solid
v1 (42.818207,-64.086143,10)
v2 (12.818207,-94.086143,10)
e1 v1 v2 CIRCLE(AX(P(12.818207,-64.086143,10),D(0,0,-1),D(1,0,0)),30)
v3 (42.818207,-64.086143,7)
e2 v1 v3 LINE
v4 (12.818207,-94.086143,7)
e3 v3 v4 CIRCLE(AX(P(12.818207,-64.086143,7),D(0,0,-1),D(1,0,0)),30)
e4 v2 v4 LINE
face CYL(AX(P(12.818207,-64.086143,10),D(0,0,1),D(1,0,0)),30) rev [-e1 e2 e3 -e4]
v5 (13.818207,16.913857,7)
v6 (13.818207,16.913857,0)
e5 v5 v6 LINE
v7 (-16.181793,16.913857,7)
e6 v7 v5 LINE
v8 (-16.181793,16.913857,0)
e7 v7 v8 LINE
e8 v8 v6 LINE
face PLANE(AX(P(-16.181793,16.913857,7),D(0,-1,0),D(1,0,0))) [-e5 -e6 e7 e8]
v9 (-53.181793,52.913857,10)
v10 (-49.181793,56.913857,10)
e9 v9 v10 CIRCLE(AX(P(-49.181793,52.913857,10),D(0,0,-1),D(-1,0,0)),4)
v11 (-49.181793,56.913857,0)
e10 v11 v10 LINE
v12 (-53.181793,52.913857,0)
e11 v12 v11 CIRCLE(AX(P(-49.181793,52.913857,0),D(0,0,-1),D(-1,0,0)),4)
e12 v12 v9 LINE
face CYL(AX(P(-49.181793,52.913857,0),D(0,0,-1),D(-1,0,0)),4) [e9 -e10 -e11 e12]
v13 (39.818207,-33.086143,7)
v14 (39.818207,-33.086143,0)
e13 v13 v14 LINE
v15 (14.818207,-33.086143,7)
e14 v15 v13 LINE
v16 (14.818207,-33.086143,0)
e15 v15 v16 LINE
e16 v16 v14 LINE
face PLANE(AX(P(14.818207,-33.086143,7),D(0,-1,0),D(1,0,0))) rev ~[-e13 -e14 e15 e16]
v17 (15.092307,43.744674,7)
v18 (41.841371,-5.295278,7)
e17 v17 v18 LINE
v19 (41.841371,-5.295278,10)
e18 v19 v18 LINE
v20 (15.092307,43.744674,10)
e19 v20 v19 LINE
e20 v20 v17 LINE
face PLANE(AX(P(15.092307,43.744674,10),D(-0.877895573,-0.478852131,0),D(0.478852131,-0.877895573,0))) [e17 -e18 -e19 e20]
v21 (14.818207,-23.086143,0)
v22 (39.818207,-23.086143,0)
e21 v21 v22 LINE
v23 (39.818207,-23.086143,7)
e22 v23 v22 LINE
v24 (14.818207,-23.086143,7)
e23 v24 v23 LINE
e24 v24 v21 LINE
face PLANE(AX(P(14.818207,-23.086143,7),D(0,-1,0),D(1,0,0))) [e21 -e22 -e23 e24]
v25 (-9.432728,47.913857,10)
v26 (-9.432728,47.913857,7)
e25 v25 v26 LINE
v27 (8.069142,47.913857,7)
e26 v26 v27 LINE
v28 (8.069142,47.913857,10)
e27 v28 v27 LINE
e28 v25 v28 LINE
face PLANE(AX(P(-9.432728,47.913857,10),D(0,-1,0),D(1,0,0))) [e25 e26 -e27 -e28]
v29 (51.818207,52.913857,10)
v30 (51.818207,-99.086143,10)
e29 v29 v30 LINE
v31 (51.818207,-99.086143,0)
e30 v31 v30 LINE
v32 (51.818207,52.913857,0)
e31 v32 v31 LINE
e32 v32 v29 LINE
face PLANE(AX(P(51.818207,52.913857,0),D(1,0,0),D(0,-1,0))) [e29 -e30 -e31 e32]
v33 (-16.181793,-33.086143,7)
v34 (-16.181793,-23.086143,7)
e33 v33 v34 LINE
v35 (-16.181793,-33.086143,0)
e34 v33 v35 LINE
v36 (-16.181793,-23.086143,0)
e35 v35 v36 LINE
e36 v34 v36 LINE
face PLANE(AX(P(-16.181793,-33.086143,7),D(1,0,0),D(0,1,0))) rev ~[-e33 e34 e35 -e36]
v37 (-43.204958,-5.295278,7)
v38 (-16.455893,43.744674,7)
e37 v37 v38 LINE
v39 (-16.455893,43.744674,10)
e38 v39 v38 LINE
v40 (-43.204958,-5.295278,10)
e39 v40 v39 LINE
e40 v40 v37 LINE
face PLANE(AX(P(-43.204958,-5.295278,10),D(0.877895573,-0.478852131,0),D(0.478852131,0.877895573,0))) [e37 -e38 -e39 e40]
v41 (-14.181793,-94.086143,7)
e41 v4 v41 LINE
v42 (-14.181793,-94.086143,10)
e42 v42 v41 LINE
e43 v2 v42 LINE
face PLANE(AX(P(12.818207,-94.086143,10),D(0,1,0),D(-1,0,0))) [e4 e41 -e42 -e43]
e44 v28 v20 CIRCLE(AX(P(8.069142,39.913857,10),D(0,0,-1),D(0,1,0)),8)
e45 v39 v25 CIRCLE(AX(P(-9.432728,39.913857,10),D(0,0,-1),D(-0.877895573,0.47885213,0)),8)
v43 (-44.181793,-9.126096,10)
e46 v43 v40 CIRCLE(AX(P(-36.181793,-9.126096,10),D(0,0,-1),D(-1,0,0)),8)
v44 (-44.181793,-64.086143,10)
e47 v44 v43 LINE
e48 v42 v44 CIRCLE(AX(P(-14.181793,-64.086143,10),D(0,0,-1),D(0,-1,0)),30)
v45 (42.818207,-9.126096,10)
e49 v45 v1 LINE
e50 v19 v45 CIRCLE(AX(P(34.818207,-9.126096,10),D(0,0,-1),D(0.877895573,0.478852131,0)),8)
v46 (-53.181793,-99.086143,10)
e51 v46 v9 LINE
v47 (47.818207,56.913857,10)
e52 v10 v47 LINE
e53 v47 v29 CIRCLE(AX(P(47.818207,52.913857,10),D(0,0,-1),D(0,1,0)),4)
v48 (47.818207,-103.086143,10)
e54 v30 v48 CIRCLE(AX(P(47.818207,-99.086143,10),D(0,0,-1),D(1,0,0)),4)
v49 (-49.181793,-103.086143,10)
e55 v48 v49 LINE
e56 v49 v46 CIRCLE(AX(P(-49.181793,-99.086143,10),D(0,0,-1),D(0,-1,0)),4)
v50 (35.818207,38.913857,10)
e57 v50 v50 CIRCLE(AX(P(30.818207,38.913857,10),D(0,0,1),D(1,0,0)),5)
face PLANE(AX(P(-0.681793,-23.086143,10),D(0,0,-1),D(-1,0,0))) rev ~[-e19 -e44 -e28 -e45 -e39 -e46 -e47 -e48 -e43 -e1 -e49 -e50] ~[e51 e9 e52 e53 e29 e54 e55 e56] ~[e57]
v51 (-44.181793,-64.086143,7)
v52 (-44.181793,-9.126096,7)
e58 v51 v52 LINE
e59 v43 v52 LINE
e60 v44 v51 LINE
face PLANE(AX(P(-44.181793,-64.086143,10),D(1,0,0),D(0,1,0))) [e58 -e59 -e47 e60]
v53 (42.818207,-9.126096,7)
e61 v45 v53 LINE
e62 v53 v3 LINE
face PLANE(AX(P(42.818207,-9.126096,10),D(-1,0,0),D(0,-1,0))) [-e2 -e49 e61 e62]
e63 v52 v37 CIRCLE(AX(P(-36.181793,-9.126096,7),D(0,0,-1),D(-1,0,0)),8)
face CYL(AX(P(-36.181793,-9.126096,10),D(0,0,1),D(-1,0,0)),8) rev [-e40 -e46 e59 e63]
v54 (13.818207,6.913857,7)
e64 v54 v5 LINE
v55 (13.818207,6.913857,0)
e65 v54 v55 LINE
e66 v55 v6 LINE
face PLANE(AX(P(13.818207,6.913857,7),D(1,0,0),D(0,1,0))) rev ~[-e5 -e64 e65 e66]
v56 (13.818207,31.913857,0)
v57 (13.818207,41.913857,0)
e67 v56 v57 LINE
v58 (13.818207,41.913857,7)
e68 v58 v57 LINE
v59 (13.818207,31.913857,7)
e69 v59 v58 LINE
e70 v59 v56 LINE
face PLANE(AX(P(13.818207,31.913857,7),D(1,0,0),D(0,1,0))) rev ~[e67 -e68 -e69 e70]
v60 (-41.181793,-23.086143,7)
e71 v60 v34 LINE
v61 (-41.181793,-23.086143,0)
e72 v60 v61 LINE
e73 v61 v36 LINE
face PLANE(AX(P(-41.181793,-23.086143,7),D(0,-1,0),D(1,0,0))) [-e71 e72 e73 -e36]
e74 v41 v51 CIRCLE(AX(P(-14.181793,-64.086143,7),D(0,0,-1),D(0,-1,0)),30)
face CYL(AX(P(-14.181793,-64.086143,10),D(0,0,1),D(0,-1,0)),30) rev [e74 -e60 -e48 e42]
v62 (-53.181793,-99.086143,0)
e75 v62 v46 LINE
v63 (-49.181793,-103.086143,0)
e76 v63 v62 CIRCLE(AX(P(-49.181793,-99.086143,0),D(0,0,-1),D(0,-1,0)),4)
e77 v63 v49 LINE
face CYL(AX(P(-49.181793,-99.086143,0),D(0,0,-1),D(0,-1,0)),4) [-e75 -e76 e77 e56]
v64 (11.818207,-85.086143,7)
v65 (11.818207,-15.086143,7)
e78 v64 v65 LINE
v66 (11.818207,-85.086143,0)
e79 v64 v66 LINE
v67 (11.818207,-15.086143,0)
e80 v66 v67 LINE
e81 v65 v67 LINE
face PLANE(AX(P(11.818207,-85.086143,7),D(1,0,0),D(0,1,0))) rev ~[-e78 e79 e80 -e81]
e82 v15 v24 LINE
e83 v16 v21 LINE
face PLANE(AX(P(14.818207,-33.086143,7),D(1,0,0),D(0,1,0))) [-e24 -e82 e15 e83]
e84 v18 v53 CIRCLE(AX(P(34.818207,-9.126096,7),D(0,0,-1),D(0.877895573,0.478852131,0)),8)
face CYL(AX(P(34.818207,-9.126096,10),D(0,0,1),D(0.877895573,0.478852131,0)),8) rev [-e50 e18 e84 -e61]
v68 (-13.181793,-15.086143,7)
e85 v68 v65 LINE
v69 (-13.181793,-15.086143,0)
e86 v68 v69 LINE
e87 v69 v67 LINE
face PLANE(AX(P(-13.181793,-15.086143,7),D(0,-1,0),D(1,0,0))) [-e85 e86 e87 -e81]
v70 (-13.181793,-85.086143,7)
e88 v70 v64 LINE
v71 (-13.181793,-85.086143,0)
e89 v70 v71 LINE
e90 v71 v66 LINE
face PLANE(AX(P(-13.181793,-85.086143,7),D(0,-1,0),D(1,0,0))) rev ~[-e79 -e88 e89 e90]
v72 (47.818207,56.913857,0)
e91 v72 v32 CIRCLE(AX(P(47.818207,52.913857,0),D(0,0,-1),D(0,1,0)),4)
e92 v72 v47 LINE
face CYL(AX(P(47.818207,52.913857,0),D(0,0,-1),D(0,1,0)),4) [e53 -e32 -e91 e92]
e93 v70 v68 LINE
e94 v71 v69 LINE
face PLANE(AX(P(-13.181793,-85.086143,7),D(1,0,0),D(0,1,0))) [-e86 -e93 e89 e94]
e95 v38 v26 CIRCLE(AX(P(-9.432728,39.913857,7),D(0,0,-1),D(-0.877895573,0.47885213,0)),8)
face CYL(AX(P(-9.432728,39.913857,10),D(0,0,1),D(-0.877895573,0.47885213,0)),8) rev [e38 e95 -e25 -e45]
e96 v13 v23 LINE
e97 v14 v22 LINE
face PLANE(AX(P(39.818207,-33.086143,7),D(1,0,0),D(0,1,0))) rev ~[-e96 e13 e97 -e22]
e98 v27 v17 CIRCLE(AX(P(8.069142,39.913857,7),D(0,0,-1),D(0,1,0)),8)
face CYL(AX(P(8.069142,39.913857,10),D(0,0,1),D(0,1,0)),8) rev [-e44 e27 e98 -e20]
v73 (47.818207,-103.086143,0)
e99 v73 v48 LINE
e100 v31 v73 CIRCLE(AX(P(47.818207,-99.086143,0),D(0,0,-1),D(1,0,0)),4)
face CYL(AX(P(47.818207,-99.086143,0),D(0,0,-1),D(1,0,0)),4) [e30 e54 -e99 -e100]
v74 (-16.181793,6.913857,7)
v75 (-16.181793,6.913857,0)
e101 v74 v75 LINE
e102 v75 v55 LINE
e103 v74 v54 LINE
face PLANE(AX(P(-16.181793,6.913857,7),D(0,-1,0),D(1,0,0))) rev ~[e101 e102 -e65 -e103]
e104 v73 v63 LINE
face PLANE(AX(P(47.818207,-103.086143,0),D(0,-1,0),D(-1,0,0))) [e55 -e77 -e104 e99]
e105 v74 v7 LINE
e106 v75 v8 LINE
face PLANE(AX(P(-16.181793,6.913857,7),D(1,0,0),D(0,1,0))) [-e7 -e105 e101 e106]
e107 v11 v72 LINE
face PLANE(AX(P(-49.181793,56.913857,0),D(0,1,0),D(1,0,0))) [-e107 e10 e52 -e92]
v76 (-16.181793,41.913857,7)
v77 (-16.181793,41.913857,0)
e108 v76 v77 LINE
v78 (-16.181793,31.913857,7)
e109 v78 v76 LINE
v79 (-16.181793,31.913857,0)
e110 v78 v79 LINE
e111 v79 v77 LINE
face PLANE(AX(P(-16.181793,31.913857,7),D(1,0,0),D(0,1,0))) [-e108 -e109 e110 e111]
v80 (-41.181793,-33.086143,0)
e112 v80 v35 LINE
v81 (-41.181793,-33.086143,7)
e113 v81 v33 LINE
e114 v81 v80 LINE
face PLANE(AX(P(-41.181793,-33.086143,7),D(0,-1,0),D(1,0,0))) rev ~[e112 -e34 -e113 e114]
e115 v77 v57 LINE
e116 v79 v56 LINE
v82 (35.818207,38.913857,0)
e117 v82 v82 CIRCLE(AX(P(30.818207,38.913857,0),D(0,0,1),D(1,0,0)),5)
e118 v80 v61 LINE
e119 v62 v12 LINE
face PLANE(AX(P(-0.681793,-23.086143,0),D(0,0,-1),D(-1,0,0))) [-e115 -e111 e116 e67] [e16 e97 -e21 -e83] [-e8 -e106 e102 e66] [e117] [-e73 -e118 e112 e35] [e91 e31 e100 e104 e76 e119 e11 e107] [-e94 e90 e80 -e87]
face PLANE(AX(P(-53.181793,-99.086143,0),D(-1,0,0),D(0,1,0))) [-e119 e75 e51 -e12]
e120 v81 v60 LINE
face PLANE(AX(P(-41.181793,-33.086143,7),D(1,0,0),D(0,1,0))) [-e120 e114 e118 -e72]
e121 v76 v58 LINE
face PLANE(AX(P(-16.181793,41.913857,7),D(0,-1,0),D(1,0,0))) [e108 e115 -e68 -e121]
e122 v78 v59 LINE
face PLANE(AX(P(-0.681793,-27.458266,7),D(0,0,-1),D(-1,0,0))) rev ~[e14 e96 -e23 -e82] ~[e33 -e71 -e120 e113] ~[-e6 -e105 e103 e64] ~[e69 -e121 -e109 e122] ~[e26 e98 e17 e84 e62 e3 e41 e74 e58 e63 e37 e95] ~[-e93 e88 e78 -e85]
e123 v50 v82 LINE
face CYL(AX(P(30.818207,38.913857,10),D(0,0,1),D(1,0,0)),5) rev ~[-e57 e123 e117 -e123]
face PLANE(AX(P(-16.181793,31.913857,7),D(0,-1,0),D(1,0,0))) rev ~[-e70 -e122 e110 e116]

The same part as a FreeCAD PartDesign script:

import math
import FreeCAD as App
import Part
import Sketcher

V = App.Vector
Q = App.Units.Quantity


def add_polygon(sketch, points):
    """Adds a closed chain of lines whose ends are joined by coincident constraints."""
    first, n = sketch.GeometryCount, len(points)
    for a, b in zip(points, points[1:] + points[:1]):
        sketch.addGeometry(Part.LineSegment(App.Vector(*a, 0), App.Vector(*b, 0)), False)
    for i in range(n):
        sketch.addConstraint(Sketcher.Constraint("Coincident", first + i, 2, first + (i + 1) % n, 1))

doc = App.newDocument("Part")
body = doc.addObject("PartDesign::Body", "Body")

sketch1 = doc.addObject("Sketcher::SketchObject", "Sketch")
body.addObject(sketch1)
sketch1.AttachmentSupport = (doc.XY_Plane, [""])
sketch1.MapMode = "FlatFace"
sketch1.addGeometry(Part.LineSegment(V(47.818207, 56.913857, 0), V(-49.181793, 56.913857, 0)), False)
sketch1.addGeometry(Part.ArcOfCircle(Part.Circle(V(-49.181793, 52.913857, 0), V(0, 0, 1), 4), math.radians(90), math.radians(180)), False)
sketch1.addGeometry(Part.LineSegment(V(-53.181793, 52.913857, 0), V(-53.181793, -99.086143, 0)), False)
sketch1.addGeometry(Part.ArcOfCircle(Part.Circle(V(-49.181793, -99.086143, 0), V(0, 0, 1), 4), math.radians(180), math.radians(270)), False)
sketch1.addGeometry(Part.LineSegment(V(-49.181793, -103.086143, 0), V(47.818207, -103.086143, 0)), False)
sketch1.addGeometry(Part.ArcOfCircle(Part.Circle(V(47.818207, -99.086143, 0), V(0, 0, 1), 4), math.radians(-90), math.radians(0)), False)
sketch1.addGeometry(Part.LineSegment(V(51.818207, -99.086143, 0), V(51.818207, 52.913857, 0)), False)
sketch1.addGeometry(Part.ArcOfCircle(Part.Circle(V(47.818207, 52.913857, 0), V(0, 0, 1), 4), math.radians(0), math.radians(90)), False)
sketch1.addConstraint(Sketcher.Constraint("Tangent", 0, 2, 1, 1))
sketch1.addConstraint(Sketcher.Constraint("Tangent", 1, 2, 2, 1))
sketch1.addConstraint(Sketcher.Constraint("Tangent", 2, 2, 3, 1))
sketch1.addConstraint(Sketcher.Constraint("Tangent", 3, 2, 4, 1))
sketch1.addConstraint(Sketcher.Constraint("Tangent", 4, 2, 5, 1))
sketch1.addConstraint(Sketcher.Constraint("Tangent", 5, 2, 6, 1))
sketch1.addConstraint(Sketcher.Constraint("Tangent", 6, 2, 7, 1))
sketch1.addConstraint(Sketcher.Constraint("Tangent", 7, 2, 0, 1))
sketch1.addConstraint(Sketcher.Constraint("Horizontal", 0))
sketch1.addConstraint(Sketcher.Constraint("Vertical", 2))
sketch1.addConstraint(Sketcher.Constraint("Horizontal", 4))
sketch1.addConstraint(Sketcher.Constraint("Vertical", 6))
sketch1.addConstraint(Sketcher.Constraint("Equal", 1, 3))
sketch1.addConstraint(Sketcher.Constraint("Equal", 3, 5))
sketch1.addConstraint(Sketcher.Constraint("Equal", 5, 7))
sketch1.addConstraint(Sketcher.Constraint("Radius", 1, Q("4 mm")))
sketch1.addConstraint(Sketcher.Constraint("DistanceX", 0, 2, 0, 1, Q("97 mm")))
sketch1.addConstraint(Sketcher.Constraint("DistanceY", 2, 2, 2, 1, Q("152 mm")))
sketch1.addConstraint(Sketcher.Constraint("DistanceX", 1, 3, -1, 1, Q("49.181793 mm")))
sketch1.addConstraint(Sketcher.Constraint("DistanceY", -1, 1, 1, 3, Q("52.913857 mm")))
pad1 = doc.addObject("PartDesign::Pad", "Pad")
body.addObject(pad1)
pad1.Profile = sketch1
pad1.Length = 10

sketch2 = doc.addObject("Sketcher::SketchObject", "Sketch001")
body.addObject(sketch2)
sketch2.AttachmentSupport = (doc.XY_Plane, [""])
sketch2.MapMode = "FlatFace"
sketch2.AttachmentOffset = App.Placement(V(0, 0, 10), App.Rotation())
sketch2.addGeometry(Part.LineSegment(V(8.069142, 47.913857, 0), V(-9.432728, 47.913857, 0)), False)
sketch2.addGeometry(Part.ArcOfCircle(Part.Circle(V(-9.432728, 39.913857, 0), V(0, 0, 1), 8), math.radians(90), math.radians(151.38954)), False)
sketch2.addGeometry(Part.LineSegment(V(-16.455893, 43.744674, 0), V(-43.204958, -5.295278, 0)), False)
sketch2.addGeometry(Part.ArcOfCircle(Part.Circle(V(-36.181793, -9.126096, 0), V(0, 0, 1), 8), math.radians(151.38954), math.radians(180)), False)
sketch2.addGeometry(Part.LineSegment(V(-44.181793, -9.126096, 0), V(-44.181793, -64.086143, 0)), False)
sketch2.addGeometry(Part.ArcOfCircle(Part.Circle(V(-14.181793, -64.086143, 0), V(0, 0, 1), 30), math.radians(180), math.radians(270)), False)
sketch2.addGeometry(Part.LineSegment(V(-14.181793, -94.086143, 0), V(12.818207, -94.086143, 0)), False)
sketch2.addGeometry(Part.ArcOfCircle(Part.Circle(V(12.818207, -64.086143, 0), V(0, 0, 1), 30), math.radians(-90), math.radians(0)), False)
sketch2.addGeometry(Part.LineSegment(V(42.818207, -64.086143, 0), V(42.818207, -9.126096, 0)), False)
sketch2.addGeometry(Part.ArcOfCircle(Part.Circle(V(34.818207, -9.126096, 0), V(0, 0, 1), 8), math.radians(0), math.radians(28.61046)), False)
sketch2.addGeometry(Part.LineSegment(V(41.841371, -5.295278, 0), V(15.092307, 43.744674, 0)), False)
sketch2.addGeometry(Part.ArcOfCircle(Part.Circle(V(8.069142, 39.913857, 0), V(0, 0, 1), 8), math.radians(28.61046), math.radians(90)), False)
sketch2.addConstraint(Sketcher.Constraint("Tangent", 0, 2, 1, 1))
sketch2.addConstraint(Sketcher.Constraint("Tangent", 1, 2, 2, 1))
sketch2.addConstraint(Sketcher.Constraint("Tangent", 2, 2, 3, 1))
sketch2.addConstraint(Sketcher.Constraint("Tangent", 3, 2, 4, 1))
sketch2.addConstraint(Sketcher.Constraint("Tangent", 4, 2, 5, 1))
sketch2.addConstraint(Sketcher.Constraint("Tangent", 5, 2, 6, 1))
sketch2.addConstraint(Sketcher.Constraint("Tangent", 6, 2, 7, 1))
sketch2.addConstraint(Sketcher.Constraint("Tangent", 7, 2, 8, 1))
sketch2.addConstraint(Sketcher.Constraint("Tangent", 8, 2, 9, 1))
sketch2.addConstraint(Sketcher.Constraint("Tangent", 9, 2, 10, 1))
sketch2.addConstraint(Sketcher.Constraint("Tangent", 10, 2, 11, 1))
sketch2.addConstraint(Sketcher.Constraint("Tangent", 11, 2, 0, 1))
sketch2.addConstraint(Sketcher.Constraint("Horizontal", 0))
sketch2.addConstraint(Sketcher.Constraint("Vertical", 4))
sketch2.addConstraint(Sketcher.Constraint("Horizontal", 6))
sketch2.addConstraint(Sketcher.Constraint("Vertical", 8))
sketch2.addConstraint(Sketcher.Constraint("Equal", 1, 3))
sketch2.addConstraint(Sketcher.Constraint("Equal", 5, 7))
sketch2.addConstraint(Sketcher.Constraint("Equal", 3, 9))
sketch2.addConstraint(Sketcher.Constraint("Equal", 9, 11))
sketch2.addConstraint(Sketcher.Constraint("Horizontal", 3, 3, 9, 3))
sketch2.addConstraint(Sketcher.Constraint("Horizontal", 2, 2, 9, 2))
sketch2.addConstraint(Sketcher.Constraint("Radius", 1, Q("8 mm")))
sketch2.addConstraint(Sketcher.Constraint("Radius", 5, Q("30 mm")))
sketch2.addConstraint(Sketcher.Constraint("DistanceX", 6, 1, 6, 2, Q("27 mm")))
sketch2.addConstraint(Sketcher.Constraint("DistanceY", 5, 3, 1, 3, Q("104 mm")))
sketch2.addConstraint(Sketcher.Constraint("DistanceX", 0, 2, 0, 1, Q("17.50187 mm")))
sketch2.addConstraint(Sketcher.Constraint("DistanceX", 3, 3, 1, 2, Q("19.7259 mm")))
sketch2.addConstraint(Sketcher.Constraint("DistanceX", 1, 3, -1, 1, Q("9.432728 mm")))
sketch2.addConstraint(Sketcher.Constraint("DistanceY", 2, 2, -1, 1, Q("5.295278 mm")))
pocket1 = doc.addObject("PartDesign::Pocket", "Pocket")
body.addObject(pocket1)
pocket1.Profile = sketch2
pocket1.Length = 3

sketch3 = doc.addObject("Sketcher::SketchObject", "Sketch002")
body.addObject(sketch3)
sketch3.AttachmentSupport = (doc.XY_Plane, [""])
sketch3.MapMode = "FlatFace"
sketch3.AttachmentOffset = App.Placement(V(0, 0, 7), App.Rotation())
add_polygon(sketch3, [(-16.181793, 41.913857), (-16.181793, 31.913857), (13.818207, 31.913857), (13.818207, 41.913857)])
add_polygon(sketch3, [(-16.181793, 16.913857), (-16.181793, 6.913857), (13.818207, 6.913857), (13.818207, 16.913857)])
add_polygon(sketch3, [(-41.181793, -23.086143), (-41.181793, -33.086143), (-16.181793, -33.086143), (-16.181793, -23.086143)])
add_polygon(sketch3, [(14.818207, -23.086143), (14.818207, -33.086143), (39.818207, -33.086143), (39.818207, -23.086143)])
add_polygon(sketch3, [(-13.181793, -15.086143), (-13.181793, -85.086143), (11.818207, -85.086143), (11.818207, -15.086143)])
sketch3.addConstraint(Sketcher.Constraint("Vertical", 0))
sketch3.addConstraint(Sketcher.Constraint("Horizontal", 1))
sketch3.addConstraint(Sketcher.Constraint("Vertical", 2))
sketch3.addConstraint(Sketcher.Constraint("Horizontal", 3))
sketch3.addConstraint(Sketcher.Constraint("Vertical", 4))
sketch3.addConstraint(Sketcher.Constraint("Horizontal", 5))
sketch3.addConstraint(Sketcher.Constraint("Vertical", 6))
sketch3.addConstraint(Sketcher.Constraint("Horizontal", 7))
sketch3.addConstraint(Sketcher.Constraint("Vertical", 8))
sketch3.addConstraint(Sketcher.Constraint("Horizontal", 9))
sketch3.addConstraint(Sketcher.Constraint("Vertical", 10))
sketch3.addConstraint(Sketcher.Constraint("Horizontal", 11))
sketch3.addConstraint(Sketcher.Constraint("Vertical", 12))
sketch3.addConstraint(Sketcher.Constraint("Horizontal", 13))
sketch3.addConstraint(Sketcher.Constraint("Vertical", 14))
sketch3.addConstraint(Sketcher.Constraint("Horizontal", 15))
sketch3.addConstraint(Sketcher.Constraint("Vertical", 16))
sketch3.addConstraint(Sketcher.Constraint("Horizontal", 17))
sketch3.addConstraint(Sketcher.Constraint("Vertical", 18))
sketch3.addConstraint(Sketcher.Constraint("Horizontal", 19))
sketch3.addConstraint(Sketcher.Constraint("Horizontal", 9, 2, 12, 2))
sketch3.addConstraint(Sketcher.Constraint("Horizontal", 11, 2, 14, 2))
sketch3.addConstraint(Sketcher.Constraint("Vertical", 3, 2, 4, 2))
sketch3.addConstraint(Sketcher.Constraint("Vertical", 2, 2, 5, 2))
sketch3.addConstraint(Sketcher.Constraint("Vertical", 7, 2, 9, 2))
sketch3.addConstraint(Sketcher.Constraint("Equal", 11, 13))
sketch3.addConstraint(Sketcher.Constraint("Equal", 15, 17))
sketch3.addConstraint(Sketcher.Constraint("Equal", 2, 4))
sketch3.addConstraint(Sketcher.Constraint("Equal", 6, 8))
sketch3.addConstraint(Sketcher.Constraint("DistanceX", 1, 1, 1, 2, Q("30 mm")))
sketch3.addConstraint(Sketcher.Constraint("DistanceX", 9, 1, 9, 2, Q("25 mm")))
sketch3.addConstraint(Sketcher.Constraint("DistanceY", 0, 2, 0, 1, Q("10 mm")))
sketch3.addConstraint(Sketcher.Constraint("DistanceY", 16, 2, 16, 1, Q("70 mm")))
sketch3.addConstraint(Sketcher.Constraint("DistanceY", 4, 2, 0, 2, Q("25 mm")))
sketch3.addConstraint(Sketcher.Constraint("DistanceY", 8, 2, 4, 2, Q("40 mm")))
sketch3.addConstraint(Sketcher.Constraint("DistanceX", 9, 2, 12, 2, Q("31 mm")))
sketch3.addConstraint(Sketcher.Constraint("DistanceX", 9, 2, 16, 2, Q("3 mm")))
sketch3.addConstraint(Sketcher.Constraint("DistanceY", 16, 2, 9, 2, Q("52 mm")))
sketch3.addConstraint(Sketcher.Constraint("DistanceX", 0, 2, -1, 1, Q("16.181793 mm")))
sketch3.addConstraint(Sketcher.Constraint("DistanceY", -1, 1, 0, 2, Q("31.913857 mm")))
pocket2 = doc.addObject("PartDesign::Pocket", "Pocket001")
body.addObject(pocket2)
pocket2.Profile = sketch3
pocket2.Length = 7

sketch4 = doc.addObject("Sketcher::SketchObject", "Sketch003")
body.addObject(sketch4)
sketch4.AttachmentSupport = (doc.XY_Plane, [""])
sketch4.MapMode = "FlatFace"
sketch4.AttachmentOffset = App.Placement(V(0, 0, 10), App.Rotation())
sketch4.addGeometry(Part.Circle(V(30.818207, 38.913857, 0), V(0, 0, 1), 5), False)
sketch4.addConstraint(Sketcher.Constraint("Diameter", 0, Q("10 mm")))
sketch4.addConstraint(Sketcher.Constraint("DistanceX", -1, 1, 0, 3, Q("30.818207 mm")))
sketch4.addConstraint(Sketcher.Constraint("DistanceY", -1, 1, 0, 3, Q("38.913857 mm")))
pocket3 = doc.addObject("PartDesign::Pocket", "Pocket002")
body.addObject(pocket3)
pocket3.Profile = sketch4
pocket3.Length = 10

doc.recompute()
